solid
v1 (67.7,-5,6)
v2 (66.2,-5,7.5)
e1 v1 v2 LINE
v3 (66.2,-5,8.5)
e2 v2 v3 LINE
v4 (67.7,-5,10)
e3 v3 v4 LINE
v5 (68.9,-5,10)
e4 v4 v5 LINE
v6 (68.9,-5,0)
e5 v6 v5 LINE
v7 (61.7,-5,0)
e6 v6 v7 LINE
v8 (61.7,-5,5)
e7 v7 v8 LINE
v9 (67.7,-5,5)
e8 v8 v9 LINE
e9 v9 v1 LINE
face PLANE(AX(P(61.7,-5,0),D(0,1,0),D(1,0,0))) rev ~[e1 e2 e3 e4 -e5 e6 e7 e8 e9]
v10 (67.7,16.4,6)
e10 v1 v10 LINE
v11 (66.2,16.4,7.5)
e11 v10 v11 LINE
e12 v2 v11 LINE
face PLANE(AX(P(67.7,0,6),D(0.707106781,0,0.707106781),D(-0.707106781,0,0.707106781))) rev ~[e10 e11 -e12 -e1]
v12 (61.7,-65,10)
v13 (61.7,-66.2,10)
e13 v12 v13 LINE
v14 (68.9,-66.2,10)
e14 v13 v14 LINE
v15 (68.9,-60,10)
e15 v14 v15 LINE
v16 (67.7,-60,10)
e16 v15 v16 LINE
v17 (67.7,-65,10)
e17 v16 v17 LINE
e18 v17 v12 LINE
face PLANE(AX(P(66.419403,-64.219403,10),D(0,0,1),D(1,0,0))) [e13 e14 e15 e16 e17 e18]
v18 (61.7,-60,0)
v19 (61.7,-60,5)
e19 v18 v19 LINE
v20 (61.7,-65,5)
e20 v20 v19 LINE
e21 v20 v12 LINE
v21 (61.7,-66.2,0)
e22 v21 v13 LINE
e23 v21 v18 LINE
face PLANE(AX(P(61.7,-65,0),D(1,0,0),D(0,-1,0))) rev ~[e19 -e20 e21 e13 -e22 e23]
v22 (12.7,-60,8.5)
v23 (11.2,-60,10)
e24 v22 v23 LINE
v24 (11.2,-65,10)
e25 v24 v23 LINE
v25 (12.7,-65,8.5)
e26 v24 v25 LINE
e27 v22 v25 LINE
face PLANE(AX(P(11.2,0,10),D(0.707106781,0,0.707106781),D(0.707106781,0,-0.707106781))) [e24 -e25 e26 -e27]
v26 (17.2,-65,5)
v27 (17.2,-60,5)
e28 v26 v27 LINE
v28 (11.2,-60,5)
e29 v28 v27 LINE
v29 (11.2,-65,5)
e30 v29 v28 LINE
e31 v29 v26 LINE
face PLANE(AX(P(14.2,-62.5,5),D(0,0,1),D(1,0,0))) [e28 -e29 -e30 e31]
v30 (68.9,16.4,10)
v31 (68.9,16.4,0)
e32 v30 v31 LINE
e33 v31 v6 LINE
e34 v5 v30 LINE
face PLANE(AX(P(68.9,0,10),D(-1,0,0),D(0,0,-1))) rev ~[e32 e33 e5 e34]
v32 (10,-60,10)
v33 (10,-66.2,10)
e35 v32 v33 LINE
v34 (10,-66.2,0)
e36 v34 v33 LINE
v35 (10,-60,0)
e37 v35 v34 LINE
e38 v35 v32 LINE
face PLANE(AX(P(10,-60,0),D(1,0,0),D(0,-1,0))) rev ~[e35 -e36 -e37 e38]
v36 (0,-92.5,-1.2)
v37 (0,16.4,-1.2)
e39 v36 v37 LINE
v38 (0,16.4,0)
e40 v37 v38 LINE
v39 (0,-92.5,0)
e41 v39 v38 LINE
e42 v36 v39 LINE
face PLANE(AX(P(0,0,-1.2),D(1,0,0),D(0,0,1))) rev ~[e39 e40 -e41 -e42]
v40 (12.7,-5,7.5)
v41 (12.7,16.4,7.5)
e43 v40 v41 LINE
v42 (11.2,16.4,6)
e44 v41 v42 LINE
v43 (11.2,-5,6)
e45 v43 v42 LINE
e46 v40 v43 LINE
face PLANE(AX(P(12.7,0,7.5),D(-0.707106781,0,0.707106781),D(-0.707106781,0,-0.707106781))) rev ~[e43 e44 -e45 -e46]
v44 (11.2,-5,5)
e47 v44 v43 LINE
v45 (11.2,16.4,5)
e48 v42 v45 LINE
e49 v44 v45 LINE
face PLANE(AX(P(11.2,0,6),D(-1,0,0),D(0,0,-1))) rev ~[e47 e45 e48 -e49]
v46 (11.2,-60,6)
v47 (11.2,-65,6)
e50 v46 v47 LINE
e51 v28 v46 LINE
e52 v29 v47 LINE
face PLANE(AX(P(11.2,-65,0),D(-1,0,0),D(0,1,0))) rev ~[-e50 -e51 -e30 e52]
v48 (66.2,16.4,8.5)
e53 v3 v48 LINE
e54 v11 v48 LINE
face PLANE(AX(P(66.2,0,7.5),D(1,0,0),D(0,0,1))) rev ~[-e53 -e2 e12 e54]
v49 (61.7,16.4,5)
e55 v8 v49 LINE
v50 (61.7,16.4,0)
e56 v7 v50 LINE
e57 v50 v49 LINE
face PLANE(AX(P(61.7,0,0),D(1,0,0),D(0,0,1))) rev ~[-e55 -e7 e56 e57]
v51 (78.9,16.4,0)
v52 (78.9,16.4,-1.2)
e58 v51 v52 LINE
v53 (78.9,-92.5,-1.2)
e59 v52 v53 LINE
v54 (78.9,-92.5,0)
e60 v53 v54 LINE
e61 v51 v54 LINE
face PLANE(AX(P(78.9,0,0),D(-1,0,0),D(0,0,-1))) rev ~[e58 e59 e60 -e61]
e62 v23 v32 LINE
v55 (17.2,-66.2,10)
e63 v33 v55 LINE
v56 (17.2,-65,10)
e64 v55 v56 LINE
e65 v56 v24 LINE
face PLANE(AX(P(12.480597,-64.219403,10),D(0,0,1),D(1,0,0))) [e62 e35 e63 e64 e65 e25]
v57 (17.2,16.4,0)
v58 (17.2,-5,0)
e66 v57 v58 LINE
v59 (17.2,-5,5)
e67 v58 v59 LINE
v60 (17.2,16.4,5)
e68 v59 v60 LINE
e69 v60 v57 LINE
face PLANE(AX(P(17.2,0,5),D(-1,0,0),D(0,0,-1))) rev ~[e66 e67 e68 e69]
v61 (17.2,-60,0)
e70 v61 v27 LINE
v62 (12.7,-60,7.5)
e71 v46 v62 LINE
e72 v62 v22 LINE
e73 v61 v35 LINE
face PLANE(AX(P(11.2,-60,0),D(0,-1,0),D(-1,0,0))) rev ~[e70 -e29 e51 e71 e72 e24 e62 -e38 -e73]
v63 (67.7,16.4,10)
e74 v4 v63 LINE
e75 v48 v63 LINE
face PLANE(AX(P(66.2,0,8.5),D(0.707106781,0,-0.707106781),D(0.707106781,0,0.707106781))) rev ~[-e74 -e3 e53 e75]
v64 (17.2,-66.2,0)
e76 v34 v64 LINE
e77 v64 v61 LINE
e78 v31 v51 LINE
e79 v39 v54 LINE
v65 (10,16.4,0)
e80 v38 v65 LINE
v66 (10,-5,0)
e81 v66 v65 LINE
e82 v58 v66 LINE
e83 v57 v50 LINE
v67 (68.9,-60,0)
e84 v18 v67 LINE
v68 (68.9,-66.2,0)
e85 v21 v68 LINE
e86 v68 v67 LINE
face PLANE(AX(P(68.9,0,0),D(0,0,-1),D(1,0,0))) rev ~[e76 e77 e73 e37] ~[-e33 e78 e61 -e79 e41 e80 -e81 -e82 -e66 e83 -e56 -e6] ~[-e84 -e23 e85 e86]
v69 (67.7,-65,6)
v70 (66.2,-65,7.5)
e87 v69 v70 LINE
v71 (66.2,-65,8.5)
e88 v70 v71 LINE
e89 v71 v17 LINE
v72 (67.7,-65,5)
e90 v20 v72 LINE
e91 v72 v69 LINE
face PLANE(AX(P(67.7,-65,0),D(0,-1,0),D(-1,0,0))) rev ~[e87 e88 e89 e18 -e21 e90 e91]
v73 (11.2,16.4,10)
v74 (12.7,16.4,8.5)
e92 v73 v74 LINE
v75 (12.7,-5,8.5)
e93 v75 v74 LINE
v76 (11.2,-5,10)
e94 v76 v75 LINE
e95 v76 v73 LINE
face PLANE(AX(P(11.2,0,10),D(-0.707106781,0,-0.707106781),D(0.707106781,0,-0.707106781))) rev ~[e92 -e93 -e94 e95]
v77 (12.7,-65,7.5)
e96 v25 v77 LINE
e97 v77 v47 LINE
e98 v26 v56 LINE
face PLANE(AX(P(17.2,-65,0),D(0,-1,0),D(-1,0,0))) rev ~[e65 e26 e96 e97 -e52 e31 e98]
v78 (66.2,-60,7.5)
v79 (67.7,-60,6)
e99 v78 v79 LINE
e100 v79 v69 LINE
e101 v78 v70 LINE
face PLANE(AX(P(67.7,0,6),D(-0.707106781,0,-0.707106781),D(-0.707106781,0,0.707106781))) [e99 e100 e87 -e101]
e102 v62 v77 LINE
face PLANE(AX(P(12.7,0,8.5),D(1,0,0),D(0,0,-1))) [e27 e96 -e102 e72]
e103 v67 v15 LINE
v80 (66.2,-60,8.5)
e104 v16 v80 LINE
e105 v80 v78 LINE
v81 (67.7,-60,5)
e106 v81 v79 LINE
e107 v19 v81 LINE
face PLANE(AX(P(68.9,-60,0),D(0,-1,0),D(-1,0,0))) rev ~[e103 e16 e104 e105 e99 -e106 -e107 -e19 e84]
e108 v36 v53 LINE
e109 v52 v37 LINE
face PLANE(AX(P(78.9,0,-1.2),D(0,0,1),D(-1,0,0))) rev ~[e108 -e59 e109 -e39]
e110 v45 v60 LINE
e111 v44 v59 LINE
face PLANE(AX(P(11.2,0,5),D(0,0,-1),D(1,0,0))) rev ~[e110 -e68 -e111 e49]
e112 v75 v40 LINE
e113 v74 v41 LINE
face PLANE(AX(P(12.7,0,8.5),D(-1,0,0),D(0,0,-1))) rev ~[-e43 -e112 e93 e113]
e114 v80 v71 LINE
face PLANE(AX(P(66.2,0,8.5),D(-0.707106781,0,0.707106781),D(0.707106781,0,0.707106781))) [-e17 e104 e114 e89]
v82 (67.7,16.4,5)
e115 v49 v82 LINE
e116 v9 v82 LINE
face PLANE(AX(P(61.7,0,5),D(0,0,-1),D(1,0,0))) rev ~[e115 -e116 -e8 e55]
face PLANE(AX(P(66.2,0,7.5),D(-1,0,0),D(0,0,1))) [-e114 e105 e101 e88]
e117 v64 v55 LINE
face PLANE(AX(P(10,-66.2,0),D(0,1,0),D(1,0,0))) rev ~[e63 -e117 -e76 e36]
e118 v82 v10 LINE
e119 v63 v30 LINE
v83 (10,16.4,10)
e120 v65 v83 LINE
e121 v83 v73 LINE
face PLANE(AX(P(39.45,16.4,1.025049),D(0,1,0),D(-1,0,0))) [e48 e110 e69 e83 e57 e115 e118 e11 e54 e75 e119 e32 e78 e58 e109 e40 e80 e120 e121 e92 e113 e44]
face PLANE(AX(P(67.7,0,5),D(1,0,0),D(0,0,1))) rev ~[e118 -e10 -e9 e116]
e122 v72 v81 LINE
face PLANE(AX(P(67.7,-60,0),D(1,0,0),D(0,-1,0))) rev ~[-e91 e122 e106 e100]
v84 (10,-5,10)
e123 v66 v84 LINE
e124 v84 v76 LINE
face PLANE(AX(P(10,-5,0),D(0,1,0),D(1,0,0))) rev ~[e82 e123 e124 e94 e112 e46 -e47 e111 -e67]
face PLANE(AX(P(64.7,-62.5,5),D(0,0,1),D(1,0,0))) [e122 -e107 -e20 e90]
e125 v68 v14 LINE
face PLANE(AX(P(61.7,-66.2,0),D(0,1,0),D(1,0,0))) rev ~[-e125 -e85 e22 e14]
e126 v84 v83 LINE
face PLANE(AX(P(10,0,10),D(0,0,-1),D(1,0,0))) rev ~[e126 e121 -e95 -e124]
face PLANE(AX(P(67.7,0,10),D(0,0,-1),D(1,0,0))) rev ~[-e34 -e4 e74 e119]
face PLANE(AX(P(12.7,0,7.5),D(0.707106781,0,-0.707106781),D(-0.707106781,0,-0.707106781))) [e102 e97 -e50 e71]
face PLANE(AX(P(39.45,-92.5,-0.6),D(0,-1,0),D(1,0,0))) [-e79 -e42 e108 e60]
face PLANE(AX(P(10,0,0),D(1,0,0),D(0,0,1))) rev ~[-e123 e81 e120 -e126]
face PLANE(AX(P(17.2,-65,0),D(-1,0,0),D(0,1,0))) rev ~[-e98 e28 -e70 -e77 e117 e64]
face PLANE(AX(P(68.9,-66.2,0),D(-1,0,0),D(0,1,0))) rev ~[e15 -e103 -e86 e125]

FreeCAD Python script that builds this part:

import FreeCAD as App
import Part
import Sketcher

V = App.Vector
Q = App.Units.Quantity


def add_polygon(sketch, points):
    """Adds a closed chain of lines whose ends are joined by coincident constraints."""
    first, n = sketch.GeometryCount, len(points)
    for a, b in zip(points, points[1:] + points[:1]):
        sketch.addGeometry(Part.LineSegment(App.Vector(*a, 0), App.Vector(*b, 0)), False)
    for i in range(n):
        sketch.addConstraint(Sketcher.Constraint("Coincident", first + i, 2, first + (i + 1) % n, 1))

doc = App.newDocument("Part")
body = doc.addObject("PartDesign::Body", "Body")

sketch1 = body.newObject("Sketcher::SketchObject", "Sketch")
sketch1.AttachmentSupport = (doc.getObject("XY_Plane"), [""])
sketch1.MapMode = "FlatFace"
add_polygon(sketch1, [(0, 0), (0, -76), (79, -76), (79, 0)])
sketch1.addConstraint([
    Sketcher.Constraint("Vertical", 0),
    Sketcher.Constraint("Horizontal", 1),
    Sketcher.Constraint("Vertical", 2),
    Sketcher.Constraint("Horizontal", 3),
    Sketcher.Constraint("Coincident", 3, 2, -1, 1),
    Sketcher.Constraint("DistanceX", 1, 1, 1, 2, Q("78.9 mm")),
    Sketcher.Constraint("DistanceY", 0, 2, 0, 1, Q("76.2 mm")),
])
pad1 = body.newObject("PartDesign::Pad", "Pad")
pad1.Profile = sketch1
pad1.Length = 1.2
pad1.Reversed = True

sketch2 = body.newObject("Sketcher::SketchObject", "Sketch001")
sketch2.AttachmentSupport = (doc.getObject("XY_Plane"), [""])
sketch2.MapMode = "FlatFace"
add_polygon(sketch2, [(11, 0), (11, -5), (17, -5), (17, 0)])
add_polygon(sketch2, [(11, -60), (11, -65), (17, -65), (17, -60)])
add_polygon(sketch2, [(62, 0), (62, -5), (68, -5), (68, 0)])
add_polygon(sketch2, [(62, -60), (62, -65), (68, -65), (68, -60)])
sketch2.addConstraint([
    Sketcher.Constraint("Vertical", 0),
    Sketcher.Constraint("Horizontal", 1),
    Sketcher.Constraint("Vertical", 2),
    Sketcher.Constraint("Horizontal", 3),
    Sketcher.Constraint("Vertical", 4),
    Sketcher.Constraint("Horizontal", 5),
    Sketcher.Constraint("Vertical", 6),
    Sketcher.Constraint("Horizontal", 7),
    Sketcher.Constraint("Vertical", 8),
    Sketcher.Constraint("Horizontal", 9),
    Sketcher.Constraint("Vertical", 10),
    Sketcher.Constraint("Horizontal", 11),
    Sketcher.Constraint("Vertical", 12),
    Sketcher.Constraint("Horizontal", 13),
    Sketcher.Constraint("Vertical", 14),
    Sketcher.Constraint("Horizontal", 15),
    Sketcher.Constraint("PointOnObject", 2, 2, -1),
    Sketcher.Constraint("PointOnObject", 10, 2, -1),
    Sketcher.Constraint("Horizontal", 1, 2, 8, 2),
    Sketcher.Constraint("Horizontal", 5, 2, 12, 2),
    Sketcher.Constraint("Horizontal", 7, 2, 14, 2),
    Sketcher.Constraint("Vertical", 3, 2, 4, 2),
    Sketcher.Constraint("Vertical", 2, 2, 5, 2),
    Sketcher.Constraint("Vertical", 11, 2, 12, 2),
    Sketcher.Constraint("Vertical", 10, 2, 13, 2),
    Sketcher.Constraint("Equal", 7, 9),
    Sketcher.Constraint("Equal", 2, 4),
    Sketcher.Constraint("DistanceX", 1, 1, 1, 2, Q("6 mm")),
    Sketcher.Constraint("DistanceY", 0, 2, 0, 1, Q("5 mm")),
    Sketcher.Constraint("DistanceY", 4, 2, -1, 1, Q("65 mm")),
    Sketcher.Constraint("DistanceX", -1, 1, 0, 2, Q("11.2 mm")),
    Sketcher.Constraint("DistanceX", -1, 1, 8, 2, Q("61.7 mm")),
])
pad2 = body.newObject("PartDesign::Pad", "Pad001")
pad2.Profile = sketch2
pad2.Length = 5

sketch3 = body.newObject("Sketcher::SketchObject", "Sketch002")
sketch3.AttachmentSupport = (doc.getObject("XY_Plane"), [""])
sketch3.MapMode = "FlatFace"
add_polygon(sketch3, [(11.2, -65), (11.2, -60), (10, -60), (10, -66.2), (17.2, -66.2), (17.2, -65)])
add_polygon(sketch3, [(68.9, -60), (67.7, -60), (67.7, -65), (61.7, -65), (61.7, -66.2), (68.9, -66.2)])
add_polygon(sketch3, [(67.7, 0), (67.7, -5), (68.9, -5), (68.9, 0)])
add_polygon(sketch3, [(10, 0), (10, -5), (11.2, -5), (11.2, 0)])
sketch3.addConstraint([
    Sketcher.Constraint("Vertical", 0),
    Sketcher.Constraint("Horizontal", 1),
    Sketcher.Constraint("Vertical", 2),
    Sketcher.Constraint("Horizontal", 3),
    Sketcher.Constraint("Vertical", 4),
    Sketcher.Constraint("Horizontal", 5),
    Sketcher.Constraint("Horizontal", 6),
    Sketcher.Constraint("Vertical", 7),
    Sketcher.Constraint("Horizontal", 8),
    Sketcher.Constraint("Vertical", 9),
    Sketcher.Constraint("Horizontal", 10),
    Sketcher.Constraint("Vertical", 11),
    Sketcher.Constraint("Vertical", 12),
    Sketcher.Constraint("Horizontal", 13),
    Sketcher.Constraint("Vertical", 14),
    Sketcher.Constraint("Horizontal", 15),
    Sketcher.Constraint("Vertical", 16),
    Sketcher.Constraint("Horizontal", 17),
    Sketcher.Constraint("Vertical", 18),
    Sketcher.Constraint("Horizontal", 19),
    Sketcher.Constraint("PointOnObject", 14, 2, -1),
    Sketcher.Constraint("PointOnObject", 18, 2, -1),
    Sketcher.Constraint("Horizontal", 1, 2, 6, 2),
    Sketcher.Constraint("Horizontal", 5, 2, 7, 2),
    Sketcher.Constraint("Horizontal", 3, 2, 9, 2),
    Sketcher.Constraint("Horizontal", 13, 2, 16, 2),
    Sketcher.Constraint("Vertical", 7, 2, 12, 2),
    Sketcher.Constraint("Vertical", 11, 2, 13, 2),
    Sketcher.Constraint("Vertical", 2, 2, 16, 2),
    Sketcher.Constraint("Vertical", 5, 2, 17, 2),
    Sketcher.Constraint("Equal", 1, 6),
    Sketcher.Constraint("Equal", 5, 8),
    Sketcher.Constraint("Equal", 19, 4),
    Sketcher.Constraint("Equal", 7, 12),
    Sketcher.Constraint("DistanceX", 5, 2, 5, 1, Q("6 mm")),
    Sketcher.Constraint("DistanceY", 0, 1, 0, 2, Q("5 mm")),
    Sketcher.Constraint("DistanceX", 1, 2, 1, 1, Q("1.2 mm")),
    Sketcher.Constraint("DistanceY", 0, 2, -1, 1, Q("60 mm")),
    Sketcher.Constraint("DistanceX", -1, 1, 1, 2, Q("10 mm")),
    Sketcher.Constraint("DistanceX", -1, 1, 6, 2, Q("67.7 mm")),
])
pad3 = body.newObject("PartDesign::Pad", "Pad002")
pad3.Profile = sketch3
pad3.Length = 10

sketch4 = body.newObject("Sketcher::SketchObject", "Sketch003")
sketch4.AttachmentSupport = (doc.getObject("XZ_Plane"), [""])
sketch4.MapMode = "FlatFace"
add_polygon(sketch4, [(11.2, 6), (11.2, 10), (12.7, 8.5), (12.7, 7.5)])
add_polygon(sketch4, [(66.2, 7.5), (66.2, 8.5), (67.7, 10), (67.7, 6)])
sketch4.addConstraint([
    Sketcher.Constraint("Vertical", 0),
    Sketcher.Constraint("Vertical", 2),
    Sketcher.Constraint("Vertical", 4),
    Sketcher.Constraint("Vertical", 6),
    Sketcher.Constraint("Perpendicular", 1, 3),
    Sketcher.Constraint("Parallel", 3, 5),
    Sketcher.Constraint("Perpendicular", 5, 7),
    Sketcher.Constraint("Horizontal", 1, 2, 4, 2),
    Sketcher.Constraint("Horizontal", 0, 2, 5, 2),
    Sketcher.Constraint("Horizontal", 3, 2, 6, 2),
    Sketcher.Constraint("Horizontal", 2, 2, 7, 2),
    Sketcher.Constraint("DistanceY", 0, 1, 0, 2, Q("4 mm")),
    Sketcher.Constraint("DistanceY", 2, 2, 2, 1, Q("1 mm")),
    Sketcher.Constraint("DistanceY", -1, 1, 0, 2, Q("10 mm")),
    Sketcher.Constraint("DistanceX", 0, 2, 4, 2, Q("55 mm")),
    Sketcher.Constraint("DistanceX", -1, 1, 0, 2, Q("11.2 mm")),
])
pad4 = body.newObject("PartDesign::Pad", "Pad003")
pad4.Profile = sketch4
pad4.Length = 65

sketch5 = body.newObject("Sketcher::SketchObject", "Sketch004")
sketch5.AttachmentSupport = (doc.getObject("XY_Plane"), [""])
sketch5.MapMode = "FlatFace"
add_polygon(sketch5, [(10, 0), (0, 0), (0, -76), (79, -76), (79, 0), (69, 0), (69, -5), (62, -5), (62, 0), (17, 0), (17, -5), (10, -5)])
add_polygon(sketch5, [(10, -66), (10, -60), (17, -60), (17, -66)])
add_polygon(sketch5, [(62, -66), (62, -60), (69, -60), (69, -66)])
sketch5.addConstraint([
    Sketcher.Constraint("Horizontal", 0),
    Sketcher.Constraint("Vertical", 1),
    Sketcher.Constraint("Horizontal", 2),
    Sketcher.Constraint("Vertical", 3),
    Sketcher.Constraint("Horizontal", 4),
    Sketcher.Constraint("Vertical", 5),
    Sketcher.Constraint("Horizontal", 6),
    Sketcher.Constraint("Vertical", 7),
    Sketcher.Constraint("Horizontal", 8),
    Sketcher.Constraint("Vertical", 9),
    Sketcher.Constraint("Horizontal", 10),
    Sketcher.Constraint("Vertical", 11),
    Sketcher.Constraint("Vertical", 12),
    Sketcher.Constraint("Horizontal", 13),
    Sketcher.Constraint("Vertical", 14),
    Sketcher.Constraint("Horizontal", 15),
    Sketcher.Constraint("Vertical", 16),
    Sketcher.Constraint("Horizontal", 17),
    Sketcher.Constraint("Vertical", 18),
    Sketcher.Constraint("Horizontal", 19),
    Sketcher.Constraint("Coincident", 0, 2, -1, 1),
    Sketcher.Constraint("PointOnObject", 3, 2, -1),
    Sketcher.Constraint("PointOnObject", 7, 2, -1),
    Sketcher.Constraint("Horizontal", 6, 2, 9, 2),
    Sketcher.Constraint("Horizontal", 13, 2, 16, 2),
    Sketcher.Constraint("Horizontal", 15, 2, 18, 2),
    Sketcher.Constraint("Vertical", 11, 2, 12, 2),
    Sketcher.Constraint("Vertical", 9, 2, 13, 2),
    Sketcher.Constraint("Vertical", 7, 2, 16, 2),
    Sketcher.Constraint("Vertical", 5, 2, 17, 2),
    Sketcher.Constraint("Equal", 0, 4),
    Sketcher.Constraint("Equal", 6, 10),
    Sketcher.Constraint("DistanceX", 0, 2, 0, 1, Q("10 mm")),
    Sketcher.Constraint("DistanceY", 5, 2, 5, 1, Q("5 mm")),
    Sketcher.Constraint("DistanceX", 2, 1, 2, 2, Q("78.9 mm")),
    Sketcher.Constraint("DistanceX", 6, 2, 6, 1, Q("7.2 mm")),
    Sketcher.Constraint("DistanceY", 1, 2, 1, 1, Q("76.2 mm")),
    Sketcher.Constraint("DistanceY", 12, 1, 12, 2, Q("6.2 mm")),
    Sketcher.Constraint("DistanceY", 12, 2, -1, 1, Q("60 mm")),
])
pocket1 = body.newObject("PartDesign::Pocket", "Pocket")
pocket1.Profile = sketch5
pocket1.Type = "ThroughAll"
pocket1.Reversed = True

sketch6 = body.newObject("Sketcher::SketchObject", "Sketch005")
sketch6.AttachmentSupport = (doc.getObject("XZ_Plane"), [""])
sketch6.MapMode = "FlatFace"
sketch6.AttachmentOffset = App.Placement(V(0, 0, 76.2), App.Rotation())
add_polygon(sketch6, [(0, 0), (0, -1.2), (78.9, -1.2), (78.9, 0)])
sketch6.addConstraint([
    Sketcher.Constraint("Vertical", 0),
    Sketcher.Constraint("Horizontal", 1),
    Sketcher.Constraint("Vertical", 2),
    Sketcher.Constraint("Horizontal", 3),
    Sketcher.Constraint("Coincident", 3, 2, -1, 1),
    Sketcher.Constraint("DistanceX", 1, 1, 1, 2, Q("78.9 mm")),
    Sketcher.Constraint("DistanceY", 0, 2, 0, 1, Q("1.2 mm")),
])
pad5 = body.newObject("PartDesign::Pad", "Pad004")
pad5.Profile = sketch6
pad5.Length = 16.3

sketch7 = body.newObject("Sketcher::SketchObject", "Sketch006")
sketch7.AttachmentSupport = (doc.getObject("XZ_Plane"), [""])
sketch7.MapMode = "FlatFace"
add_polygon(sketch7, [(78.9, -1.2), (0, -1.2), (0, 0), (10, 0), (10, 10), (11.2, 10), (12.7, 8.5), (12.7, 7.5), (11.2, 6), (11.2, 5), (17.2, 5), (17.2, 0), (61.7, 0), (61.7, 5), (67.7, 5), (67.7, 6), (66.2, 7.5), (66.2, 8.5), (67.7, 10), (68.9, 10), (68.9, 0), (78.9, 0)])
sketch7.addConstraint([
    Sketcher.Constraint("Horizontal", 0),
    Sketcher.Constraint("Vertical", 1),
    Sketcher.Constraint("Horizontal", 2),
    Sketcher.Constraint("Vertical", 3),
    Sketcher.Constraint("Horizontal", 4),
    Sketcher.Constraint("Vertical", 6),
    Sketcher.Constraint("Vertical", 8),
    Sketcher.Constraint("Horizontal", 9),
    Sketcher.Constraint("Vertical", 10),
    Sketcher.Constraint("Horizontal", 11),
    Sketcher.Constraint("Vertical", 12),
    Sketcher.Constraint("Horizontal", 13),
    Sketcher.Constraint("Vertical", 14),
    Sketcher.Constraint("Vertical", 16),
    Sketcher.Constraint("Horizontal", 18),
    Sketcher.Constraint("Vertical", 19),
    Sketcher.Constraint("Horizontal", 20),
    Sketcher.Constraint("Vertical", 21),
    Sketcher.Constraint("Coincident", 1, 2, -1, 1),
    Sketcher.Constraint("PointOnObject", 10, 2, -1),
    Sketcher.Constraint("PointOnObject", 19, 2, -1),
    Sketcher.Constraint("Perpendicular", 5, 7),
    Sketcher.Constraint("Perpendicular", 7, 15),
    Sketcher.Constraint("Perpendicular", 15, 17),
    Sketcher.Constraint("Horizontal", 9, 2, 12, 2),
    Sketcher.Constraint("Horizontal", 7, 2, 14, 2),
    Sketcher.Constraint("Horizontal", 6, 2, 15, 2),
    Sketcher.Constraint("Horizontal", 5, 2, 16, 2),
    Sketcher.Constraint("Horizontal", 4, 2, 17, 2),
    Sketcher.Constraint("Vertical", 4, 2, 7, 2),
    Sketcher.Constraint("Vertical", 14, 2, 17, 2),
    Sketcher.Constraint("Equal", 9, 13),
    Sketcher.Constraint("Equal", 4, 18),
    Sketcher.Constraint("Equal", 2, 20),
    Sketcher.Constraint("Equal", 18, 1),
    Sketcher.Constraint("Equal", 20, 3),
    Sketcher.Constraint("Equal", 6, 8),
    Sketcher.Constraint("DistanceX", 2, 1, 2, 2, Q("10 mm")),
    Sketcher.Constraint("DistanceX", 9, 1, 9, 2, Q("6 mm")),
    Sketcher.Constraint("DistanceY", 6, 2, 6, 1, Q("1 mm")),
    Sketcher.Constraint("DistanceY", 10, 2, 10, 1, Q("5 mm")),
    Sketcher.Constraint("DistanceX", 0, 2, 0, 1, Q("78.9 mm")),
    Sketcher.Constraint("DistanceX", 4, 1, 4, 2, Q("1.2 mm")),
])
pad6 = body.newObject("PartDesign::Pad", "Pad005")
pad6.Profile = sketch7
pad6.Length = 16.4
pad6.Reversed = True

doc.recompute()
